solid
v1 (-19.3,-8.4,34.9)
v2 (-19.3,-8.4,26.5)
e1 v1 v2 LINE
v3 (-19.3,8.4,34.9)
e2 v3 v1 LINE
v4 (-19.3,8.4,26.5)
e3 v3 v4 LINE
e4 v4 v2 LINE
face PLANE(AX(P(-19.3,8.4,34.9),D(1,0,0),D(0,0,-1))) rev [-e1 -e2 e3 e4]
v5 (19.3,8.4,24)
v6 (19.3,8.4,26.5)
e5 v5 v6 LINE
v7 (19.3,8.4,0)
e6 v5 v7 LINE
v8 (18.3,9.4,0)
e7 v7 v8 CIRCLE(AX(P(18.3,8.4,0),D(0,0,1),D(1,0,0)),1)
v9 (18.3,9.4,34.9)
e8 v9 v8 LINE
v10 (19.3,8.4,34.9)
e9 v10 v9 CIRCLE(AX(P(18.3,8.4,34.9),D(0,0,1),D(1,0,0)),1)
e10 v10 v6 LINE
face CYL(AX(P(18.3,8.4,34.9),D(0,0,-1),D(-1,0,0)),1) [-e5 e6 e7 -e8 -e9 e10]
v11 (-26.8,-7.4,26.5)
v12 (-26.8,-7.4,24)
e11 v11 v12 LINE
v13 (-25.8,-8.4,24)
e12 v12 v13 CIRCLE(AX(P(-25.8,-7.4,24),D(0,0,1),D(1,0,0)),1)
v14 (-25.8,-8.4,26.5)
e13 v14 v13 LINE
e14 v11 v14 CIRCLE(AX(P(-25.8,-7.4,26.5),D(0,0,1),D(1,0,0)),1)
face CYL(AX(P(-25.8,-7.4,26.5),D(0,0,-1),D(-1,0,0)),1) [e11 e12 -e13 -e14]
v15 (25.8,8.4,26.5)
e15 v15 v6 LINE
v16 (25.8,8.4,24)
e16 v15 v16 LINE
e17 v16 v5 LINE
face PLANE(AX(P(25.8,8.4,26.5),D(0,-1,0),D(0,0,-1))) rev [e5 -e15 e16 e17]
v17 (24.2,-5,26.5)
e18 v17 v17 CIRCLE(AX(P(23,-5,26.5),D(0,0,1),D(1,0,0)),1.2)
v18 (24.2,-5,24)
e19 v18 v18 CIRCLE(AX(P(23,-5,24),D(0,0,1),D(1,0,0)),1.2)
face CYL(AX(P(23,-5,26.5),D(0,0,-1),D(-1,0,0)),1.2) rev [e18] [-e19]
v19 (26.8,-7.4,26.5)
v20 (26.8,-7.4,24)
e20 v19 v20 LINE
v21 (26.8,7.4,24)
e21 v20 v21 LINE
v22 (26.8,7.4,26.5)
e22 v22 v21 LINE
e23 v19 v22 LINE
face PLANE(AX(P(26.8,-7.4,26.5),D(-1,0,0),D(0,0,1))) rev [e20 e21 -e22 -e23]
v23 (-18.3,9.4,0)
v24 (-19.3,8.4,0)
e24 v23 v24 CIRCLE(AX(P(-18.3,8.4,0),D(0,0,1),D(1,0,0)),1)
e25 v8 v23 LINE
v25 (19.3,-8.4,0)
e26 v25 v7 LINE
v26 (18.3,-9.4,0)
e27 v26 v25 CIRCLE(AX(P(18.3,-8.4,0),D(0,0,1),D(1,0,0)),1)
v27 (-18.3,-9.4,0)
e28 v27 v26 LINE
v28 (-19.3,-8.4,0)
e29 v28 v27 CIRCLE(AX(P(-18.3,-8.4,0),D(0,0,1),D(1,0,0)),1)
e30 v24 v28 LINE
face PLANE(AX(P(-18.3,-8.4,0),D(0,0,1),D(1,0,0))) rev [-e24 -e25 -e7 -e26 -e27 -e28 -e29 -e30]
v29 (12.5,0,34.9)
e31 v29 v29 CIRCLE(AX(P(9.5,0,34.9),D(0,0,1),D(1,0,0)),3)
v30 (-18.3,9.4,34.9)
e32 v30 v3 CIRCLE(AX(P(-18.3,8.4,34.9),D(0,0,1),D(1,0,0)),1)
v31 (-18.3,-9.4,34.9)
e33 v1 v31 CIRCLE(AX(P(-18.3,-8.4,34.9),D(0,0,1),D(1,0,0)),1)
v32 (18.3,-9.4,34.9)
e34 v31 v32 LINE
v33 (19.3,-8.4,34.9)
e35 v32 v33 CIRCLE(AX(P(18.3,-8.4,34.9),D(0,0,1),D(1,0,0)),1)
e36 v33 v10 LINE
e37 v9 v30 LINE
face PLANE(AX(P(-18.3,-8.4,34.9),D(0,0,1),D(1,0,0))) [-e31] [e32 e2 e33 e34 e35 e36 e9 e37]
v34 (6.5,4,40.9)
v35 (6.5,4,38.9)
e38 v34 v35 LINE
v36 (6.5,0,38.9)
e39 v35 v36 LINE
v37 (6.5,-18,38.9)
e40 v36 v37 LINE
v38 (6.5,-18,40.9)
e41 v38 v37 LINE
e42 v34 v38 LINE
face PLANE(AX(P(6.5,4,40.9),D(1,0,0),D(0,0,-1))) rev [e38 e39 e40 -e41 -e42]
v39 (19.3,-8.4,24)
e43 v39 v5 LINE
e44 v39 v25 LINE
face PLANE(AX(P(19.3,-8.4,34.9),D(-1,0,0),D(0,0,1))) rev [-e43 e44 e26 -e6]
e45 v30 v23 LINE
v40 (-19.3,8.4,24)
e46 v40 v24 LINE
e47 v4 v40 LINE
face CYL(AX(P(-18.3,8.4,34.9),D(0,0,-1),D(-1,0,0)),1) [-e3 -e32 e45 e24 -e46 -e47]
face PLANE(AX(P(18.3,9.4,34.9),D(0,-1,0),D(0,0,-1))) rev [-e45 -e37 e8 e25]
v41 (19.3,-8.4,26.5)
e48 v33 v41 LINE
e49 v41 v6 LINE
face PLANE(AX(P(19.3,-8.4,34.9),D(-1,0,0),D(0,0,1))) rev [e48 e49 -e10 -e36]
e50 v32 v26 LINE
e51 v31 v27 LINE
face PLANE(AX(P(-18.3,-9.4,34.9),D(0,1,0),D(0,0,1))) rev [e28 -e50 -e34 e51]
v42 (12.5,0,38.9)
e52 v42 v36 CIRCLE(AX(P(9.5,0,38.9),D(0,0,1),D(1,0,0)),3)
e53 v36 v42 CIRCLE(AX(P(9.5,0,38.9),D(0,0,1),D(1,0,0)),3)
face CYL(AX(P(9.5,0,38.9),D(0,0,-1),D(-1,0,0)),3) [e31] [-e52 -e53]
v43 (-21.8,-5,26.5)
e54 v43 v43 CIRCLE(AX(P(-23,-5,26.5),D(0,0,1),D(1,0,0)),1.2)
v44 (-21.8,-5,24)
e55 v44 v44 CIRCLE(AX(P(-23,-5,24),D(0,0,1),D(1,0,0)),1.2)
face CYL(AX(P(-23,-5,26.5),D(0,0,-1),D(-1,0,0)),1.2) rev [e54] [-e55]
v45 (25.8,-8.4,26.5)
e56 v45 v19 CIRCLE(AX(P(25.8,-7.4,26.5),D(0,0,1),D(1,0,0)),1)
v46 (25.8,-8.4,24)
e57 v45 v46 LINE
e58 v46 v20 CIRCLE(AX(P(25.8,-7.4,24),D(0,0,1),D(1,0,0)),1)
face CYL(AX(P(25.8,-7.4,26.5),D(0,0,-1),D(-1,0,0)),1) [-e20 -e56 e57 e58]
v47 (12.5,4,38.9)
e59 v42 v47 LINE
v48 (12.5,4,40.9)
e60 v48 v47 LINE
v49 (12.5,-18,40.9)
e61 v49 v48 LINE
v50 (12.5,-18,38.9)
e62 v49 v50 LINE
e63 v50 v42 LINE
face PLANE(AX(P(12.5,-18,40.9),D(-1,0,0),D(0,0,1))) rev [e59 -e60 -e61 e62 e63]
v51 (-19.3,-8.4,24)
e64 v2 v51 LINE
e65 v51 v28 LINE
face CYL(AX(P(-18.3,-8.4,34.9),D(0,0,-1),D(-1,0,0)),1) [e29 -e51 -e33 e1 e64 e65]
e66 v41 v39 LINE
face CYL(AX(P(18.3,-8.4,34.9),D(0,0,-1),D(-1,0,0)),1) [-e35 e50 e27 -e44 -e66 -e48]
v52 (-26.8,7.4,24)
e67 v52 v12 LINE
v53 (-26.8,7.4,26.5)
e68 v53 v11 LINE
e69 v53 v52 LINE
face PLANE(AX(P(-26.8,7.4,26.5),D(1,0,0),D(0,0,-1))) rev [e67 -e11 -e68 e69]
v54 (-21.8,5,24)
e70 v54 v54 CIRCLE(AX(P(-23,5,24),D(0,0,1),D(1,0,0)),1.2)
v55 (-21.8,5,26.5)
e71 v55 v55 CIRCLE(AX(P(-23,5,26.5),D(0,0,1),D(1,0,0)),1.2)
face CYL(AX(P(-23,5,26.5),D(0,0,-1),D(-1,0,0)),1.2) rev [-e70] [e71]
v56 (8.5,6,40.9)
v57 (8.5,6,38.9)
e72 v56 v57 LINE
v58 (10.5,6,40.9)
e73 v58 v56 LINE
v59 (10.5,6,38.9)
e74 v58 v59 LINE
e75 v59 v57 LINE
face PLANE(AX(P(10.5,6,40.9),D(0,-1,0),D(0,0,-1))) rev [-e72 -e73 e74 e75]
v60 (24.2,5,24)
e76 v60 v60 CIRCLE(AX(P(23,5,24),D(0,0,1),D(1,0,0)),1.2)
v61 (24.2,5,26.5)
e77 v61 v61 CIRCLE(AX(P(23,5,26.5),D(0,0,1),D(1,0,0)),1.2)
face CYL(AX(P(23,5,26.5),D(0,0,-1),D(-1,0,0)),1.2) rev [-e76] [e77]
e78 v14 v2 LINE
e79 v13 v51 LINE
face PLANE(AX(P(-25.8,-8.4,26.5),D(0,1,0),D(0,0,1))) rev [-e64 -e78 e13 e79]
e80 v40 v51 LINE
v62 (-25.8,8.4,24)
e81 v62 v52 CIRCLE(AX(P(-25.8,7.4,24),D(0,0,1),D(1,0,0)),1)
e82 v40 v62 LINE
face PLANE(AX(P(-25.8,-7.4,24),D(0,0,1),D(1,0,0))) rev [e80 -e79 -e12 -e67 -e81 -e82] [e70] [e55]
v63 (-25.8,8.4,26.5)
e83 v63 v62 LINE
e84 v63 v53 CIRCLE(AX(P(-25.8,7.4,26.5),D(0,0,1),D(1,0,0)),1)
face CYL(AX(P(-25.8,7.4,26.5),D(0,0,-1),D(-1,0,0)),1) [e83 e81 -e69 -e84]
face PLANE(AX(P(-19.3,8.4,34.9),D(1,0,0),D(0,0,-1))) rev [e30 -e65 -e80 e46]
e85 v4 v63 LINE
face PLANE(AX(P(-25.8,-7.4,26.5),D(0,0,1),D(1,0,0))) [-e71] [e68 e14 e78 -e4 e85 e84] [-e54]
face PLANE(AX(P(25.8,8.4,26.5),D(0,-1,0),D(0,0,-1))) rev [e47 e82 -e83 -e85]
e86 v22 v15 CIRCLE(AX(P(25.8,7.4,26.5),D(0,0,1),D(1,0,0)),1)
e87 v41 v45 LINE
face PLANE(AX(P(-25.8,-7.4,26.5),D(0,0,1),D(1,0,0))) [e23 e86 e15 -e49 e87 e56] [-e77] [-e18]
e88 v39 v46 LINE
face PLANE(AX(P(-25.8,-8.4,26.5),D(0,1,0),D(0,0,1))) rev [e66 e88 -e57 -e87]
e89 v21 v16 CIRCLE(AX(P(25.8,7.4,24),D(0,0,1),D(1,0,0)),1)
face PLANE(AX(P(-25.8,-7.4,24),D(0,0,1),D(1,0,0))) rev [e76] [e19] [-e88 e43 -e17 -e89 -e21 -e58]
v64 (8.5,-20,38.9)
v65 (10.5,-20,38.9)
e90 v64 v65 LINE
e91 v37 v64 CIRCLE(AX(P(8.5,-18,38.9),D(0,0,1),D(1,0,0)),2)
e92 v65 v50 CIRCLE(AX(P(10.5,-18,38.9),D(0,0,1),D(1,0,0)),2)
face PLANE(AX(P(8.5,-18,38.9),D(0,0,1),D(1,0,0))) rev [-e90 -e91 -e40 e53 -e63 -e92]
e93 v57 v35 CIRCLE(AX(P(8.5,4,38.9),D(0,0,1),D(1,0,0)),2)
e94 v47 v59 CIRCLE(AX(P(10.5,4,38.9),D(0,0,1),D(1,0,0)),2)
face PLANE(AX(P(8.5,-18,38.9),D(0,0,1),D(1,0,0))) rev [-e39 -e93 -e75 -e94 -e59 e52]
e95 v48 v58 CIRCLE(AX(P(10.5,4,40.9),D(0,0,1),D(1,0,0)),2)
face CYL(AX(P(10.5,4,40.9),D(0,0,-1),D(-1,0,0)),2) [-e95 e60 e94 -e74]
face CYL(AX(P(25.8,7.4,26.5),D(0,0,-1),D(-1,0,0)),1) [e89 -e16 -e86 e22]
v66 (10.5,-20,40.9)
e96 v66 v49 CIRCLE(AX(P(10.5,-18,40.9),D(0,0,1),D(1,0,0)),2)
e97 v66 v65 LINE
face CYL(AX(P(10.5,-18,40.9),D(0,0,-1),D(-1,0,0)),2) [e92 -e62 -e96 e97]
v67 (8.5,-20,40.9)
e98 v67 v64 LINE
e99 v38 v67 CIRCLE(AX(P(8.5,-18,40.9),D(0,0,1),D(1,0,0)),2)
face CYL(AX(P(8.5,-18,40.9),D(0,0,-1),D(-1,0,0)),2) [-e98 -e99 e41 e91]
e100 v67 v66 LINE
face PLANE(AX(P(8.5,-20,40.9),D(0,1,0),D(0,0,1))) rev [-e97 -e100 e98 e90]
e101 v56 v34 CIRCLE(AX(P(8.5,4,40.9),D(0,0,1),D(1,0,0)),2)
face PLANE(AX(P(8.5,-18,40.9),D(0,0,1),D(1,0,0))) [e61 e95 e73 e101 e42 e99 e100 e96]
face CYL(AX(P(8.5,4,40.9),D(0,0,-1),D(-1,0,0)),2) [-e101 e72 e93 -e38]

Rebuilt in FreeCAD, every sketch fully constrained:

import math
import FreeCAD as App
import Part
import Sketcher
from FreeCAD import Vector
Q = App.Units.Quantity

doc = App.newDocument("Part")
body = doc.addObject("PartDesign::Body", "Body")

sketch1 = doc.addObject("Sketcher::SketchObject", "Sketch")
body.addObject(sketch1)
sketch1.AttachmentSupport = (doc.XY_Plane, [""])
sketch1.MapMode = "FlatFace"
sketch1.addGeometry(Part.LineSegment(Vector(-18.3, -9.4, 0), Vector(18.3, -9.4, 0)), False)
sketch1.addGeometry(Part.ArcOfCircle(Part.Circle(Vector(18.3, -8.4, 0), Vector(0, 0, 1), 1), math.radians(-90), math.radians(0)), False)
sketch1.addGeometry(Part.LineSegment(Vector(19.3, -8.4, 0), Vector(19.3, 8.4, 0)), False)
sketch1.addGeometry(Part.ArcOfCircle(Part.Circle(Vector(18.3, 8.4, 0), Vector(0, 0, 1), 1), math.radians(0), math.radians(90)), False)
sketch1.addGeometry(Part.LineSegment(Vector(18.3, 9.4, 0), Vector(-18.3, 9.4, 0)), False)
sketch1.addGeometry(Part.ArcOfCircle(Part.Circle(Vector(-18.3, 8.4, 0), Vector(0, 0, 1), 1), math.radians(90), math.radians(180)), False)
sketch1.addGeometry(Part.LineSegment(Vector(-19.3, 8.4, 0), Vector(-19.3, -8.4, 0)), False)
sketch1.addGeometry(Part.ArcOfCircle(Part.Circle(Vector(-18.3, -8.4, 0), Vector(0, 0, 1), 1), math.radians(-180), math.radians(-90)), False)
sketch1.addConstraint(Sketcher.Constraint("Tangent", 0, 2, 1, 1))
sketch1.addConstraint(Sketcher.Constraint("Tangent", 1, 2, 2, 1))
sketch1.addConstraint(Sketcher.Constraint("Tangent", 2, 2, 3, 1))
sketch1.addConstraint(Sketcher.Constraint("Tangent", 3, 2, 4, 1))
sketch1.addConstraint(Sketcher.Constraint("Tangent", 4, 2, 5, 1))
sketch1.addConstraint(Sketcher.Constraint("Tangent", 5, 2, 6, 1))
sketch1.addConstraint(Sketcher.Constraint("Tangent", 6, 2, 7, 1))
sketch1.addConstraint(Sketcher.Constraint("Tangent", 7, 2, 0, 1))
sketch1.addConstraint(Sketcher.Constraint("Horizontal", 0))
sketch1.addConstraint(Sketcher.Constraint("Vertical", 2))
sketch1.addConstraint(Sketcher.Constraint("Horizontal", 4))
sketch1.addConstraint(Sketcher.Constraint("Vertical", 6))
sketch1.addConstraint(Sketcher.Constraint("Equal", 1, 3))
sketch1.addConstraint(Sketcher.Constraint("Equal", 3, 5))
sketch1.addConstraint(Sketcher.Constraint("Equal", 5, 7))
sketch1.addConstraint(Sketcher.Constraint("Symmetric", 1, 3, 5, 3, -1, 1))
sketch1.addConstraint(Sketcher.Constraint("Radius", 1, Q("1 mm")))
sketch1.addConstraint(Sketcher.Constraint("DistanceX", 0, 1, 0, 2, Q("36.6 mm")))
sketch1.addConstraint(Sketcher.Constraint("DistanceY", 2, 1, 2, 2, Q("16.8 mm")))
pad1 = doc.addObject("PartDesign::Pad", "Pad")
body.addObject(pad1)
pad1.Profile = sketch1
pad1.Length = 34.9

sketch2 = doc.addObject("Sketcher::SketchObject", "Sketch001")
body.addObject(sketch2)
sketch2.AttachmentSupport = (doc.XY_Plane, [""])
sketch2.MapMode = "FlatFace"
sketch2.AttachmentOffset = App.Placement(Vector(0, 0, 24), App.Rotation())
sketch2.addGeometry(Part.LineSegment(Vector(-25.8, -8.4, 0), Vector(25.8, -8.4, 0)), False)
sketch2.addGeometry(Part.ArcOfCircle(Part.Circle(Vector(25.8, -7.4, 0), Vector(0, 0, 1), 1), math.radians(-90), math.radians(0)), False)
sketch2.addGeometry(Part.LineSegment(Vector(26.8, -7.4, 0), Vector(26.8, 7.4, 0)), False)
sketch2.addGeometry(Part.ArcOfCircle(Part.Circle(Vector(25.8, 7.4, 0), Vector(0, 0, 1), 1), math.radians(0), math.radians(90)), False)
sketch2.addGeometry(Part.LineSegment(Vector(25.8, 8.4, 0), Vector(-25.8, 8.4, 0)), False)
sketch2.addGeometry(Part.ArcOfCircle(Part.Circle(Vector(-25.8, 7.4, 0), Vector(0, 0, 1), 1), math.radians(90), math.radians(180)), False)
sketch2.addGeometry(Part.LineSegment(Vector(-26.8, 7.4, 0), Vector(-26.8, -7.4, 0)), False)
sketch2.addGeometry(Part.ArcOfCircle(Part.Circle(Vector(-25.8, -7.4, 0), Vector(0, 0, 1), 1), math.radians(-180), math.radians(-90)), False)
sketch2.addConstraint(Sketcher.Constraint("Tangent", 0, 2, 1, 1))
sketch2.addConstraint(Sketcher.Constraint("Tangent", 1, 2, 2, 1))
sketch2.addConstraint(Sketcher.Constraint("Tangent", 2, 2, 3, 1))
sketch2.addConstraint(Sketcher.Constraint("Tangent", 3, 2, 4, 1))
sketch2.addConstraint(Sketcher.Constraint("Tangent", 4, 2, 5, 1))
sketch2.addConstraint(Sketcher.Constraint("Tangent", 5, 2, 6, 1))
sketch2.addConstraint(Sketcher.Constraint("Tangent", 6, 2, 7, 1))
sketch2.addConstraint(Sketcher.Constraint("Tangent", 7, 2, 0, 1))
sketch2.addConstraint(Sketcher.Constraint("Horizontal", 0))
sketch2.addConstraint(Sketcher.Constraint("Vertical", 2))
sketch2.addConstraint(Sketcher.Constraint("Horizontal", 4))
sketch2.addConstraint(Sketcher.Constraint("Vertical", 6))
sketch2.addConstraint(Sketcher.Constraint("Equal", 1, 3))
sketch2.addConstraint(Sketcher.Constraint("Equal", 3, 5))
sketch2.addConstraint(Sketcher.Constraint("Equal", 5, 7))
sketch2.addConstraint(Sketcher.Constraint("Symmetric", 1, 3, 5, 3, -1, 1))
sketch2.addConstraint(Sketcher.Constraint("Radius", 1, Q("1 mm")))
sketch2.addConstraint(Sketcher.Constraint("DistanceX", 0, 1, 0, 2, Q("51.6 mm")))
sketch2.addConstraint(Sketcher.Constraint("DistanceY", 2, 1, 2, 2, Q("14.8 mm")))
pad2 = doc.addObject("PartDesign::Pad", "Pad001")
body.addObject(pad2)
pad2.Profile = sketch2
pad2.Length = 2.5

sketch3 = doc.addObject("Sketcher::SketchObject", "Sketch002")
body.addObject(sketch3)
sketch3.AttachmentSupport = (doc.XY_Plane, [""])
sketch3.MapMode = "FlatFace"
sketch3.AttachmentOffset = App.Placement(Vector(0, 0, 24), App.Rotation())
sketch3.addGeometry(Part.Circle(Vector(23, 5, 0), Vector(0, 0, 1), 1.2), False)
sketch3.addGeometry(Part.Circle(Vector(23, -5, 0), Vector(0, 0, 1), 1.2), False)
sketch3.addGeometry(Part.Circle(Vector(-23, 5, 0), Vector(0, 0, 1), 1.2), False)
sketch3.addGeometry(Part.Circle(Vector(-23, -5, 0), Vector(0, 0, 1), 1.2), False)
sketch3.addConstraint(Sketcher.Constraint("Equal", 0, 1))
sketch3.addConstraint(Sketcher.Constraint("Equal", 1, 2))
sketch3.addConstraint(Sketcher.Constraint("Equal", 2, 3))
sketch3.addConstraint(Sketcher.Constraint("Symmetric", 1, 3, 2, 3, -1, 1))
sketch3.addConstraint(Sketcher.Constraint("Symmetric", 0, 3, 3, 3, -1, 1))
sketch3.addConstraint(Sketcher.Constraint("Symmetric", 0, 3, 2, 3, -2))
sketch3.addConstraint(Sketcher.Constraint("Diameter", 0, Q("2.4 mm")))
sketch3.addConstraint(Sketcher.Constraint("DistanceX", -1, 1, 0, 3, Q("23 mm")))
sketch3.addConstraint(Sketcher.Constraint("DistanceY", -1, 1, 0, 3, Q("5 mm")))
pocket1 = doc.addObject("PartDesign::Pocket", "Pocket")
body.addObject(pocket1)
pocket1.Profile = sketch3
pocket1.Length = 2.5
pocket1.Reversed = True

sketch4 = doc.addObject("Sketcher::SketchObject", "Sketch003")
body.addObject(sketch4)
sketch4.AttachmentSupport = (doc.XY_Plane, [""])
sketch4.MapMode = "FlatFace"
sketch4.AttachmentOffset = App.Placement(Vector(0, 0, 34.9), App.Rotation())
sketch4.addGeometry(Part.Circle(Vector(9.5, 0, 0), Vector(0, 0, 1), 3), False)
sketch4.addConstraint(Sketcher.Constraint("PointOnObject", 0, 3, -1))
sketch4.addConstraint(Sketcher.Constraint("Diameter", 0, Q("6 mm")))
sketch4.addConstraint(Sketcher.Constraint("DistanceX", -1, 1, 0, 3, Q("9.5 mm")))
pad3 = doc.addObject("PartDesign::Pad", "Pad002")
body.addObject(pad3)
pad3.Profile = sketch4
pad3.Length = 4

sketch5 = doc.addObject("Sketcher::SketchObject", "Sketch004")
body.addObject(sketch5)
sketch5.AttachmentSupport = (doc.XY_Plane, [""])
sketch5.MapMode = "FlatFace"
sketch5.AttachmentOffset = App.Placement(Vector(0, 0, 38.9), App.Rotation())
sketch5.addGeometry(Part.LineSegment(Vector(8.5, -20, 0), Vector(10.5, -20, 0)), False)
sketch5.addGeometry(Part.ArcOfCircle(Part.Circle(Vector(10.5, -18, 0), Vector(0, 0, 1), 2), math.radians(-90), math.radians(0)), False)
sketch5.addGeometry(Part.LineSegment(Vector(12.5, -18, 0), Vector(12.5, 4, 0)), False)
sketch5.addGeometry(Part.ArcOfCircle(Part.Circle(Vector(10.5, 4, 0), Vector(0, 0, 1), 2), math.radians(0), math.radians(90)), False)
sketch5.addGeometry(Part.LineSegment(Vector(10.5, 6, 0), Vector(8.5, 6, 0)), False)
sketch5.addGeometry(Part.ArcOfCircle(Part.Circle(Vector(8.5, 4, 0), Vector(0, 0, 1), 2), math.radians(90), math.radians(180)), False)
sketch5.addGeometry(Part.LineSegment(Vector(6.5, 4, 0), Vector(6.5, -18, 0)), False)
sketch5.addGeometry(Part.ArcOfCircle(Part.Circle(Vector(8.5, -18, 0), Vector(0, 0, 1), 2), math.radians(-180), math.radians(-90)), False)
sketch5.addConstraint(Sketcher.Constraint("Tangent", 0, 2, 1, 1))
sketch5.addConstraint(Sketcher.Constraint("Tangent", 1, 2, 2, 1))
sketch5.addConstraint(Sketcher.Constraint("Tangent", 2, 2, 3, 1))
sketch5.addConstraint(Sketcher.Constraint("Tangent", 3, 2, 4, 1))
sketch5.addConstraint(Sketcher.Constraint("Tangent", 4, 2, 5, 1))
sketch5.addConstraint(Sketcher.Constraint("Tangent", 5, 2, 6, 1))
sketch5.addConstraint(Sketcher.Constraint("Tangent", 6, 2, 7, 1))
sketch5.addConstraint(Sketcher.Constraint("Tangent", 7, 2, 0, 1))
sketch5.addConstraint(Sketcher.Constraint("Horizontal", 0))
sketch5.addConstraint(Sketcher.Constraint("Vertical", 2))
sketch5.addConstraint(Sketcher.Constraint("Horizontal", 4))
sketch5.addConstraint(Sketcher.Constraint("Vertical", 6))
sketch5.addConstraint(Sketcher.Constraint("Equal", 1, 3))
sketch5.addConstraint(Sketcher.Constraint("Equal", 3, 5))
sketch5.addConstraint(Sketcher.Constraint("Equal", 5, 7))
sketch5.addConstraint(Sketcher.Constraint("Radius", 1, Q("2 mm")))
sketch5.addConstraint(Sketcher.Constraint("DistanceX", 0, 1, 0, 2, Q("2 mm")))
sketch5.addConstraint(Sketcher.Constraint("DistanceY", 2, 1, 2, 2, Q("22 mm")))
sketch5.addConstraint(Sketcher.Constraint("DistanceY", 1, 3, -1, 1, Q("18 mm")))
sketch5.addConstraint(Sketcher.Constraint("DistanceX", -1, 1, 1, 3, Q("10.5 mm")))
pad4 = doc.addObject("PartDesign::Pad", "Pad003")
body.addObject(pad4)
pad4.Profile = sketch5
pad4.Length = 2

doc.recompute()
